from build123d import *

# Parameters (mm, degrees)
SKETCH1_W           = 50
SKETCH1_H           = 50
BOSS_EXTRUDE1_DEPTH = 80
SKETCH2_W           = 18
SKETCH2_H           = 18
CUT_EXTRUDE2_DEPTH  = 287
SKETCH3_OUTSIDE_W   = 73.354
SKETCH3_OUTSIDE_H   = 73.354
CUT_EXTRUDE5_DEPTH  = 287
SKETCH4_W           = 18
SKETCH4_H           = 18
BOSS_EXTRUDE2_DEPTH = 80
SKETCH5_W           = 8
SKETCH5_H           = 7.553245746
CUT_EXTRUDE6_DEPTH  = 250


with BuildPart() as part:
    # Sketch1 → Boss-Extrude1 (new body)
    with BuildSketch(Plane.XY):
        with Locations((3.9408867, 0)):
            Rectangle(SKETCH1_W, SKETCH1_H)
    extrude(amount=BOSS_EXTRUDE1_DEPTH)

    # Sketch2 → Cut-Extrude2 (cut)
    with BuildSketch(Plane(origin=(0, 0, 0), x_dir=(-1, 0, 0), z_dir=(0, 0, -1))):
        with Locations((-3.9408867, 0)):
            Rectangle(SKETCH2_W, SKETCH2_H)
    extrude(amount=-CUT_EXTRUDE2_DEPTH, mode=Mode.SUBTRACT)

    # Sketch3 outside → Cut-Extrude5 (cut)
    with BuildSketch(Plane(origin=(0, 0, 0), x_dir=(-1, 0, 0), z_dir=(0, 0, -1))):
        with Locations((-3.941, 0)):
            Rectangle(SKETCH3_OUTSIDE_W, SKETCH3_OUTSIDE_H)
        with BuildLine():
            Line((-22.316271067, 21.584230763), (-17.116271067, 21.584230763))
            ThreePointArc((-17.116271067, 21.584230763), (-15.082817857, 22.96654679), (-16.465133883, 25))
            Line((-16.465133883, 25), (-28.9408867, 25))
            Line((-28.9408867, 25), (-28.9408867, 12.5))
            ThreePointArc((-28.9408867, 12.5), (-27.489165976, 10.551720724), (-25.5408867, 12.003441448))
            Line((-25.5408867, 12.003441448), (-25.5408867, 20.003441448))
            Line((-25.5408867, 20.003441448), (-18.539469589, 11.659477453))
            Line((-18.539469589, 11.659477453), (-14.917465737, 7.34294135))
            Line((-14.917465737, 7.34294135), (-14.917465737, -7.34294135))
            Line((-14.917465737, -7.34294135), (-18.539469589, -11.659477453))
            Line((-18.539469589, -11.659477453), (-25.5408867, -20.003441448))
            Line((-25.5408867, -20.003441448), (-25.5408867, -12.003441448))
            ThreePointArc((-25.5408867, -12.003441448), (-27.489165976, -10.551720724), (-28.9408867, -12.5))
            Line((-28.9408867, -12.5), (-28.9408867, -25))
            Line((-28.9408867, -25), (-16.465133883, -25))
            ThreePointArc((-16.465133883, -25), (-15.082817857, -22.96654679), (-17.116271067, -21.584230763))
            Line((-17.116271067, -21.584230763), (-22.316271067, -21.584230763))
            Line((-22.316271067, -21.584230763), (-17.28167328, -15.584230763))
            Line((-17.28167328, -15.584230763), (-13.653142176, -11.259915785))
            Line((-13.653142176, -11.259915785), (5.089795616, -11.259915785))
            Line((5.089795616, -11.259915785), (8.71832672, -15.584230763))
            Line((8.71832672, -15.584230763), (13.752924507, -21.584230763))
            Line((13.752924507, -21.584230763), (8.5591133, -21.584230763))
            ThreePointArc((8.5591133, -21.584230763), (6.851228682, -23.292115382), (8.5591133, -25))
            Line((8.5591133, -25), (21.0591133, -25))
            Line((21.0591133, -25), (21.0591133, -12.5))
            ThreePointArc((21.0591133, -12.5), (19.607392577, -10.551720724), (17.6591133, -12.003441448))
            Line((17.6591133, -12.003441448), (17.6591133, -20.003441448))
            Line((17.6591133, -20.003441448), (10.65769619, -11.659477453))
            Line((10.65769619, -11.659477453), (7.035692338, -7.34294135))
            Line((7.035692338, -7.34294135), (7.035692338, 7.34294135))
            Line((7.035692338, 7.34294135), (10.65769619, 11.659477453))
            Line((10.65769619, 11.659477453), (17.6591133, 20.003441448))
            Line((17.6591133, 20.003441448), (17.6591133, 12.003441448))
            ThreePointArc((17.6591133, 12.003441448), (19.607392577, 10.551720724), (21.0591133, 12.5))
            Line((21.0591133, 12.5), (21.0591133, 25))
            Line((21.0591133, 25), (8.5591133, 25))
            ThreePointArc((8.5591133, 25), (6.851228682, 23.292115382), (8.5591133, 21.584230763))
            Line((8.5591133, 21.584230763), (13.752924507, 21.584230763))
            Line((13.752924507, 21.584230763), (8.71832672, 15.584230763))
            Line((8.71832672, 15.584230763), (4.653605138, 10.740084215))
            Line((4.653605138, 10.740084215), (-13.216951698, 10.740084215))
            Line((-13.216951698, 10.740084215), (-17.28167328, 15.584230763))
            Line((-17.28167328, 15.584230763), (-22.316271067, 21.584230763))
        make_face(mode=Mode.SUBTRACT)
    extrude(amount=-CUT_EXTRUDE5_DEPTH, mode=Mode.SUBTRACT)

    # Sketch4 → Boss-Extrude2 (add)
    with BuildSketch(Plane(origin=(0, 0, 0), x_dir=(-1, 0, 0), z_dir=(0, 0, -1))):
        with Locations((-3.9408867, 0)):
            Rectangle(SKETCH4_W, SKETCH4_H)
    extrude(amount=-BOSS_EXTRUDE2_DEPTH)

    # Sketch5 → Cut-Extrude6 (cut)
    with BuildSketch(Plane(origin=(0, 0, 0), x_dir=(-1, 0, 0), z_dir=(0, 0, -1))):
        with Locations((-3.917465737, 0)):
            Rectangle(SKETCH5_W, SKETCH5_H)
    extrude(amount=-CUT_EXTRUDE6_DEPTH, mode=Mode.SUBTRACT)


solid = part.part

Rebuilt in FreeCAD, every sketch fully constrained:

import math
import FreeCAD as App
import Part
import Sketcher
Q = App.Units.Quantity

doc = App.newDocument("Part")
body = doc.addObject("PartDesign::Body", "Body")

sketch1 = body.newObject("Sketcher::SketchObject", "Sketch")
sketch1.AttachmentSupport = (doc.getObject("XY_Plane"), [""])
sketch1.MapMode = "FlatFace"
sketch1.addGeometry(Part.LineSegment(App.Vector(-21, 25, 0), App.Vector(-21, -25, 0)), False)
sketch1.addGeometry(Part.LineSegment(App.Vector(-21, -25, 0), App.Vector(29, -25, 0)), False)
sketch1.addGeometry(Part.LineSegment(App.Vector(29, -25, 0), App.Vector(29, 25, 0)), False)
sketch1.addGeometry(Part.LineSegment(App.Vector(29, 25, 0), App.Vector(-21, 25, 0)), False)
sketch1.addConstraint(Sketcher.Constraint("Coincident", 0, 2, 1, 1))
sketch1.addConstraint(Sketcher.Constraint("Coincident", 1, 2, 2, 1))
sketch1.addConstraint(Sketcher.Constraint("Coincident", 2, 2, 3, 1))
sketch1.addConstraint(Sketcher.Constraint("Coincident", 3, 2, 0, 1))
sketch1.addConstraint(Sketcher.Constraint("Vertical", 0))
sketch1.addConstraint(Sketcher.Constraint("Horizontal", 1))
sketch1.addConstraint(Sketcher.Constraint("Vertical", 2))
sketch1.addConstraint(Sketcher.Constraint("Horizontal", 3))
sketch1.addConstraint(Sketcher.Constraint("Equal", 3, 0))
sketch1.addConstraint(Sketcher.Constraint("DistanceX", 1, 1, 1, 2, Q("50 mm")))
sketch1.addConstraint(Sketcher.Constraint("DistanceY", 0, 2, -1, 1, Q("25 mm")))
sketch1.addConstraint(Sketcher.Constraint("DistanceX", 0, 2, -1, 1, Q("21.059113 mm")))
pad1 = body.newObject("PartDesign::Pad", "Pad")
pad1.Profile = sketch1
pad1.Length = 80

sketch2 = body.newObject("Sketcher::SketchObject", "Sketch001")
sketch2.AttachmentSupport = (doc.getObject("XY_Plane"), [""])
sketch2.MapMode = "FlatFace"
sketch2.addGeometry(Part.LineSegment(App.Vector(13, 9, 0), App.Vector(13, -9, 0)), False)
sketch2.addGeometry(Part.LineSegment(App.Vector(13, -9, 0), App.Vector(-5, -9, 0)), False)
sketch2.addGeometry(Part.LineSegment(App.Vector(-5, -9, 0), App.Vector(-5, 9, 0)), False)
sketch2.addGeometry(Part.LineSegment(App.Vector(-5, 9, 0), App.Vector(13, 9, 0)), False)
sketch2.addConstraint(Sketcher.Constraint("Coincident", 0, 2, 1, 1))
sketch2.addConstraint(Sketcher.Constraint("Coincident", 1, 2, 2, 1))
sketch2.addConstraint(Sketcher.Constraint("Coincident", 2, 2, 3, 1))
sketch2.addConstraint(Sketcher.Constraint("Coincident", 3, 2, 0, 1))
sketch2.addConstraint(Sketcher.Constraint("Vertical", 0))
sketch2.addConstraint(Sketcher.Constraint("Horizontal", 1))
sketch2.addConstraint(Sketcher.Constraint("Vertical", 2))
sketch2.addConstraint(Sketcher.Constraint("Horizontal", 3))
sketch2.addConstraint(Sketcher.Constraint("Equal", 3, 0))
sketch2.addConstraint(Sketcher.Constraint("DistanceX", 1, 2, 1, 1, Q("18 mm")))
sketch2.addConstraint(Sketcher.Constraint("DistanceY", 0, 2, -1, 1, Q("9 mm")))
sketch2.addConstraint(Sketcher.Constraint("DistanceX", -1, 1, 0, 2, Q("12.940887 mm")))
pocket1 = body.newObject("PartDesign::Pocket", "Pocket")
pocket1.Profile = sketch2
pocket1.Length = 287
pocket1.Reversed = True

sketch3 = body.newObject("Sketcher::SketchObject", "Sketch002")
sketch3.AttachmentSupport = (doc.getObject("XY_Plane"), [""])
sketch3.MapMode = "FlatFace"
sketch3.addGeometry(Part.LineSegment(App.Vector(40.6, 36.7, 0), App.Vector(40.6, -36.7, 0)), False)
sketch3.addGeometry(Part.LineSegment(App.Vector(40.6, -36.7, 0), App.Vector(-32.7, -36.7, 0)), False)
sketch3.addGeometry(Part.LineSegment(App.Vector(-32.7, -36.7, 0), App.Vector(-32.7, 36.7, 0)), False)
sketch3.addGeometry(Part.LineSegment(App.Vector(-32.7, 36.7, 0), App.Vector(40.6, 36.7, 0)), False)
sketch3.addGeometry(Part.LineSegment(App.Vector(17.1, 21.6, 0), App.Vector(22.3, 21.6, 0)), False)
sketch3.addGeometry(Part.LineSegment(App.Vector(22.3, 21.6, 0), App.Vector(17.3, 15.6, 0)), False)
sketch3.addGeometry(Part.LineSegment(App.Vector(17.3, 15.6, 0), App.Vector(13.2, 10.7, 0)), False)
sketch3.addGeometry(Part.LineSegment(App.Vector(13.2, 10.7, 0), App.Vector(-4.7, 10.7, 0)), False)
sketch3.addGeometry(Part.LineSegment(App.Vector(-4.7, 10.7, 0), App.Vector(-8.7, 15.6, 0)), False)
sketch3.addGeometry(Part.LineSegment(App.Vector(-8.7, 15.6, 0), App.Vector(-13.8, 21.6, 0)), False)
sketch3.addGeometry(Part.LineSegment(App.Vector(-13.8, 21.6, 0), App.Vector(-8.6, 21.6, 0)), False)
sketch3.addGeometry(Part.ArcOfCircle(Part.Circle(App.Vector(-8.6, 23.3, 0), App.Vector(0, 0, 1), 1.7), math.radians(-90), math.radians(90)), False)
sketch3.addGeometry(Part.LineSegment(App.Vector(-8.6, 25, 0), App.Vector(-21.1, 25, 0)), False)
sketch3.addGeometry(Part.LineSegment(App.Vector(-21.1, 25, 0), App.Vector(-21.1, 12.5, 0)), False)
sketch3.addGeometry(Part.ArcOfCircle(Part.Circle(App.Vector(-19.4, 12.3, 0), App.Vector(0, 0, 1), 1.7), math.radians(172), math.radians(352)), False)
sketch3.addGeometry(Part.LineSegment(App.Vector(-17.7, 12, 0), App.Vector(-17.7, 20, 0)), False)
sketch3.addGeometry(Part.LineSegment(App.Vector(-17.7, 20, 0), App.Vector(-10.7, 11.7, 0)), False)
sketch3.addGeometry(Part.LineSegment(App.Vector(-10.7, 11.7, 0), App.Vector(-7, 7.3, 0)), False)
sketch3.addGeometry(Part.LineSegment(App.Vector(-7, 7.3, 0), App.Vector(-7, -7.3, 0)), False)
sketch3.addGeometry(Part.LineSegment(App.Vector(-7, -7.3, 0), App.Vector(-10.7, -11.7, 0)), False)
sketch3.addGeometry(Part.LineSegment(App.Vector(-10.7, -11.7, 0), App.Vector(-17.7, -20, 0)), False)
sketch3.addGeometry(Part.LineSegment(App.Vector(-17.7, -20, 0), App.Vector(-17.7, -12, 0)), False)
sketch3.addGeometry(Part.ArcOfCircle(Part.Circle(App.Vector(-19.4, -12.3, 0), App.Vector(0, 0, 1), 1.7), math.radians(8), math.radians(188)), False)
sketch3.addGeometry(Part.LineSegment(App.Vector(-21.1, -12.5, 0), App.Vector(-21.1, -25, 0)), False)
sketch3.addGeometry(Part.LineSegment(App.Vector(-21.1, -25, 0), App.Vector(-8.6, -25, 0)), False)
sketch3.addGeometry(Part.ArcOfCircle(Part.Circle(App.Vector(-8.6, -23.3, 0), App.Vector(0, 0, 1), 1.7), math.radians(-90), math.radians(90)), False)
sketch3.addGeometry(Part.LineSegment(App.Vector(-8.6, -21.6, 0), App.Vector(-13.8, -21.6, 0)), False)
sketch3.addGeometry(Part.LineSegment(App.Vector(-13.8, -21.6, 0), App.Vector(-8.7, -15.6, 0)), False)
sketch3.addGeometry(Part.LineSegment(App.Vector(-8.7, -15.6, 0), App.Vector(-5.1, -11.3, 0)), False)
sketch3.addGeometry(Part.LineSegment(App.Vector(-5.1, -11.3, 0), App.Vector(13.7, -11.3, 0)), False)
sketch3.addGeometry(Part.LineSegment(App.Vector(13.7, -11.3, 0), App.Vector(17.3, -15.6, 0)), False)
sketch3.addGeometry(Part.LineSegment(App.Vector(17.3, -15.6, 0), App.Vector(22.3, -21.6, 0)), False)
sketch3.addGeometry(Part.LineSegment(App.Vector(22.3, -21.6, 0), App.Vector(17.1, -21.6, 0)), False)
sketch3.addGeometry(Part.ArcOfCircle(Part.Circle(App.Vector(16.8, -23.3, 0), App.Vector(0, 0, 1), 1.7), math.radians(79), math.radians(259)), False)
sketch3.addGeometry(Part.LineSegment(App.Vector(16.5, -25, 0), App.Vector(28.9, -25, 0)), False)
sketch3.addGeometry(Part.LineSegment(App.Vector(28.9, -25, 0), App.Vector(28.9, -12.5, 0)), False)
sketch3.addGeometry(Part.ArcOfCircle(Part.Circle(App.Vector(27.2, -12.3, 0), App.Vector(0, 0, 1), 1.7), math.radians(-8), math.radians(172)), False)
sketch3.addGeometry(Part.LineSegment(App.Vector(25.5, -12, 0), App.Vector(25.5, -20, 0)), False)
sketch3.addGeometry(Part.LineSegment(App.Vector(25.5, -20, 0), App.Vector(18.5, -11.7, 0)), False)
sketch3.addGeometry(Part.LineSegment(App.Vector(18.5, -11.7, 0), App.Vector(14.9, -7.3, 0)), False)
sketch3.addGeometry(Part.LineSegment(App.Vector(14.9, -7.3, 0), App.Vector(14.9, 7.3, 0)), False)
sketch3.addGeometry(Part.LineSegment(App.Vector(14.9, 7.3, 0), App.Vector(18.5, 11.7, 0)), False)
sketch3.addGeometry(Part.LineSegment(App.Vector(18.5, 11.7, 0), App.Vector(25.5, 20, 0)), False)
sketch3.addGeometry(Part.LineSegment(App.Vector(25.5, 20, 0), App.Vector(25.5, 12, 0)), False)
sketch3.addGeometry(Part.ArcOfCircle(Part.Circle(App.Vector(27.2, 12.3, 0), App.Vector(0, 0, 1), 1.7), math.radians(-172), math.radians(8)), False)
sketch3.addGeometry(Part.LineSegment(App.Vector(28.9, 12.5, 0), App.Vector(28.9, 25, 0)), False)
sketch3.addGeometry(Part.LineSegment(App.Vector(28.9, 25, 0), App.Vector(16.5, 25, 0)), False)
sketch3.addGeometry(Part.ArcOfCircle(Part.Circle(App.Vector(16.8, 23.3, 0), App.Vector(0, 0, 1), 1.7), math.radians(101), math.radians(281)), False)
sketch3.addConstraint(Sketcher.Constraint("Coincident", 0, 2, 1, 1))
sketch3.addConstraint(Sketcher.Constraint("Coincident", 1, 2, 2, 1))
sketch3.addConstraint(Sketcher.Constraint("Coincident", 2, 2, 3, 1))
sketch3.addConstraint(Sketcher.Constraint("Coincident", 3, 2, 0, 1))
sketch3.addConstraint(Sketcher.Constraint("Coincident", 4, 2, 5, 1))
sketch3.addConstraint(Sketcher.Constraint("Coincident", 5, 2, 6, 1))
sketch3.addConstraint(Sketcher.Constraint("Coincident", 6, 2, 7, 1))
sketch3.addConstraint(Sketcher.Constraint("Coincident", 7, 2, 8, 1))
sketch3.addConstraint(Sketcher.Constraint("Coincident", 8, 2, 9, 1))
sketch3.addConstraint(Sketcher.Constraint("Coincident", 9, 2, 10, 1))
sketch3.addConstraint(Sketcher.Constraint("Tangent", 10, 2, 11, 1))
sketch3.addConstraint(Sketcher.Constraint("Tangent", 11, 2, 12, 1))
sketch3.addConstraint(Sketcher.Constraint("Coincident", 12, 2, 13, 1))
sketch3.addConstraint(Sketcher.Constraint("Coincident", 13, 2, 14, 1))
sketch3.addConstraint(Sketcher.Constraint("Coincident", 14, 2, 15, 1))
sketch3.addConstraint(Sketcher.Constraint("Coincident", 15, 2, 16, 1))
sketch3.addConstraint(Sketcher.Constraint("Coincident", 16, 2, 17, 1))
sketch3.addConstraint(Sketcher.Constraint("Coincident", 17, 2, 18, 1))
sketch3.addConstraint(Sketcher.Constraint("Coincident", 18, 2, 19, 1))
sketch3.addConstraint(Sketcher.Constraint("Coincident", 19, 2, 20, 1))
sketch3.addConstraint(Sketcher.Constraint("Coincident", 20, 2, 21, 1))
sketch3.addConstraint(Sketcher.Constraint("Coincident", 21, 2, 22, 1))
sketch3.addConstraint(Sketcher.Constraint("Coincident", 22, 2, 23, 1))
sketch3.addConstraint(Sketcher.Constraint("Coincident", 23, 2, 24, 1))
sketch3.addConstraint(Sketcher.Constraint("Tangent", 24, 2, 25, 1))
sketch3.addConstraint(Sketcher.Constraint("Tangent", 25, 2, 26, 1))
sketch3.addConstraint(Sketcher.Constraint("Coincident", 26, 2, 27, 1))
sketch3.addConstraint(Sketcher.Constraint("Coincident", 27, 2, 28, 1))
sketch3.addConstraint(Sketcher.Constraint("Coincident", 28, 2, 29, 1))
sketch3.addConstraint(Sketcher.Constraint("Coincident", 29, 2, 30, 1))
sketch3.addConstraint(Sketcher.Constraint("Coincident", 30, 2, 31, 1))
sketch3.addConstraint(Sketcher.Constraint("Coincident", 31, 2, 32, 1))
sketch3.addConstraint(Sketcher.Constraint("Coincident", 32, 2, 33, 1))
sketch3.addConstraint(Sketcher.Constraint("Coincident", 33, 2, 34, 1))
sketch3.addConstraint(Sketcher.Constraint("Coincident", 34, 2, 35, 1))
sketch3.addConstraint(Sketcher.Constraint("Coincident", 35, 2, 36, 1))
sketch3.addConstraint(Sketcher.Constraint("Coincident", 36, 2, 37, 1))
sketch3.addConstraint(Sketcher.Constraint("Coincident", 37, 2, 38, 1))
sketch3.addConstraint(Sketcher.Constraint("Coincident", 38, 2, 39, 1))
sketch3.addConstraint(Sketcher.Constraint("Coincident", 39, 2, 40, 1))
sketch3.addConstraint(Sketcher.Constraint("Coincident", 40, 2, 41, 1))
sketch3.addConstraint(Sketcher.Constraint("Coincident", 41, 2, 42, 1))
sketch3.addConstraint(Sketcher.Constraint("Coincident", 42, 2, 43, 1))
sketch3.addConstraint(Sketcher.Constraint("Coincident", 43, 2, 44, 1))
sketch3.addConstraint(Sketcher.Constraint("Coincident", 44, 2, 45, 1))
sketch3.addConstraint(Sketcher.Constraint("Coincident", 45, 2, 46, 1))
sketch3.addConstraint(Sketcher.Constraint("Coincident", 46, 2, 47, 1))
sketch3.addConstraint(Sketcher.Constraint("Coincident", 47, 2, 4, 1))
sketch3.addConstraint(Sketcher.Constraint("Vertical", 0))
sketch3.addConstraint(Sketcher.Constraint("Horizontal", 1))
sketch3.addConstraint(Sketcher.Constraint("Vertical", 2))
sketch3.addConstraint(Sketcher.Constraint("Horizontal", 3))
sketch3.addConstraint(Sketcher.Constraint("Horizontal", 4))
sketch3.addConstraint(Sketcher.Constraint("Horizontal", 7))
sketch3.addConstraint(Sketcher.Constraint("Horizontal", 10))
sketch3.addConstraint(Sketcher.Constraint("Horizontal", 12))
sketch3.addConstraint(Sketcher.Constraint("Vertical", 13))
sketch3.addConstraint(Sketcher.Constraint("Vertical", 15))
sketch3.addConstraint(Sketcher.Constraint("Vertical", 18))
sketch3.addConstraint(Sketcher.Constraint("Vertical", 21))
sketch3.addConstraint(Sketcher.Constraint("Vertical", 23))
sketch3.addConstraint(Sketcher.Constraint("Horizontal", 24))
sketch3.addConstraint(Sketcher.Constraint("Horizontal", 26))
sketch3.addConstraint(Sketcher.Constraint("Horizontal", 29))
sketch3.addConstraint(Sketcher.Constraint("Horizontal", 32))
sketch3.addConstraint(Sketcher.Constraint("Horizontal", 34))
sketch3.addConstraint(Sketcher.Constraint("Vertical", 35))
sketch3.addConstraint(Sketcher.Constraint("Vertical", 37))
sketch3.addConstraint(Sketcher.Constraint("Vertical", 40))
sketch3.addConstraint(Sketcher.Constraint("Vertical", 43))
sketch3.addConstraint(Sketcher.Constraint("Vertical", 45))
sketch3.addConstraint(Sketcher.Constraint("Horizontal", 46))
sketch3.addConstraint(Sketcher.Constraint("Equal", 14, 22))
sketch3.addConstraint(Sketcher.Constraint("Equal", 11, 25))
sketch3.addConstraint(Sketcher.Constraint("Equal", 22, 36))
sketch3.addConstraint(Sketcher.Constraint("Equal", 36, 44))
sketch3.addConstraint(Sketcher.Constraint("Equal", 33, 47))
sketch3.addConstraint(Sketcher.Constraint("Symmetric", 14, 3, 22, 3, -1))
sketch3.addConstraint(Sketcher.Constraint("Symmetric", 11, 3, 25, 3, -1))
sketch3.addConstraint(Sketcher.Constraint("Symmetric", 36, 3, 44, 3, -1))
sketch3.addConstraint(Sketcher.Constraint("Symmetric", 33, 3, 47, 3, -1))
sketch3.addConstraint(Sketcher.Constraint("Symmetric", 16, 2, 19, 2, -1))
sketch3.addConstraint(Sketcher.Constraint("Symmetric", 15, 2, 20, 2, -1))
sketch3.addConstraint(Sketcher.Constraint("Symmetric", 8, 2, 27, 2, -1))
sketch3.addConstraint(Sketcher.Constraint("Symmetric", 5, 2, 30, 2, -1))
sketch3.addConstraint(Sketcher.Constraint("Symmetric", 4, 2, 31, 2, -1))
sketch3.addConstraint(Sketcher.Constraint("Symmetric", 38, 2, 41, 2, -1))
sketch3.addConstraint(Sketcher.Constraint("Symmetric", 37, 2, 42, 2, -1))
sketch3.addConstraint(Sketcher.Constraint("Symmetric", 34, 2, 45, 2, -1))
sketch3.addConstraint(Sketcher.Constraint("Parallel", 5, 6))
sketch3.addConstraint(Sketcher.Constraint("Parallel", 8, 9))
sketch3.addConstraint(Sketcher.Constraint("Parallel", 9, 16))
sketch3.addConstraint(Sketcher.Constraint("Parallel", 16, 17))
sketch3.addConstraint(Sketcher.Constraint("Parallel", 6, 19))
sketch3.addConstraint(Sketcher.Constraint("Parallel", 19, 20))
sketch3.addConstraint(Sketcher.Constraint("Parallel", 20, 27))
sketch3.addConstraint(Sketcher.Constraint("Parallel", 27, 28))
sketch3.addConstraint(Sketcher.Constraint("Parallel", 17, 30))
sketch3.addConstraint(Sketcher.Constraint("Parallel", 31, 38))
sketch3.addConstraint(Sketcher.Constraint("Parallel", 38, 39))
sketch3.addConstraint(Sketcher.Constraint("Parallel", 28, 41))
sketch3.addConstraint(Sketcher.Constraint("Horizontal", 25, 3, 33, 3))
sketch3.addConstraint(Sketcher.Constraint("Horizontal", 22, 3, 36, 3))
sketch3.addConstraint(Sketcher.Constraint("Horizontal", 5, 2, 8, 2))
sketch3.addConstraint(Sketcher.Constraint("Horizontal", 4, 2, 9, 2))
sketch3.addConstraint(Sketcher.Constraint("Horizontal", 24, 2, 33, 2))
sketch3.addConstraint(Sketcher.Constraint("Horizontal", 22, 2, 35, 2))
sketch3.addConstraint(Sketcher.Constraint("Horizontal", 21, 2, 36, 2))
sketch3.addConstraint(Sketcher.Constraint("Horizontal", 20, 2, 37, 2))
sketch3.addConstraint(Sketcher.Constraint("Horizontal", 19, 2, 38, 2))
sketch3.addConstraint(Sketcher.Constraint("Horizontal", 18, 2, 39, 2))
sketch3.addConstraint(Sketcher.Constraint("Horizontal", 13, 2, 44, 2))
sketch3.addConstraint(Sketcher.Constraint("Equal", 3, 0))
sketch3.addConstraint(Sketcher.Constraint("Equal", 24, 13))
sketch3.addConstraint(Sketcher.Constraint("DistanceY", 15, 1, 15, 2, Q("8 mm")))
sketch3.addConstraint(Sketcher.Constraint("Angle", 5, Q("-130 deg")))
sketch3.addConstraint(Sketcher.Constraint("DistanceX", 4, 1, 4, 2, Q("5.2 mm")))
sketch3.addConstraint(Sketcher.Constraint("DistanceX", 12, 2, 12, 1, Q("12.5 mm")))
sketch3.addConstraint(Sketcher.Constraint("DistanceY", -1, 1, 11, 2, Q("25 mm")))
sketch3.addConstraint(Sketcher.Constraint("DistanceY", 5, 2, 4, 2, Q("6 mm")))
sketch3.addConstraint(Sketcher.Constraint("DistanceX", 8, 2, 5, 2, Q("26 mm")))
sketch3.addConstraint(Sketcher.Constraint("DistanceY", 29, 2, 6, 2, Q("22 mm")))
sketch3.addConstraint(Sketcher.Constraint("DistanceX", 14, 3, 11, 3, Q("10.8 mm")))
sketch3.addConstraint(Sketcher.Constraint("DistanceX", 25, 3, 36, 3, Q("35.8 mm")))
sketch3.addConstraint(Sketcher.Constraint("DistanceX", 14, 3, 14, 2, Q("1.7 mm")))
sketch3.addConstraint(Sketcher.Constraint("DistanceX", 1, 2, 1, 1, Q("73.354 mm")))
sketch3.addConstraint(Sketcher.Constraint("Radius", 33, Q("1.738639 mm")))
sketch3.addConstraint(Sketcher.Constraint("DistanceX", -1, 1, 0, 2, Q("40.618 mm")))
sketch3.addConstraint(Sketcher.Constraint("DistanceY", 0, 2, -1, 1, Q("36.677 mm")))
sketch3.addConstraint(Sketcher.Constraint("Radius", 11, Q("1.707885 mm")))
sketch3.addConstraint(Sketcher.Constraint("Radius", 14, Q("1.718035 mm")))
sketch3.addConstraint(Sketcher.Constraint("DistanceX", 10, 1, 10, 2, Q("5.193811 mm")))
sketch3.addConstraint(Sketcher.Constraint("DistanceY", 17, 2, 14, 2, Q("4.6605 mm")))
sketch3.addConstraint(Sketcher.Constraint("DistanceX", 19, 2, 28, 2, Q("5.567901 mm")))
sketch3.addConstraint(Sketcher.Constraint("DistanceY", 25, 3, 28, 2, Q("12.0322 mm")))
sketch3.addConstraint(Sketcher.Constraint("DistanceX", -1, 1, 4, 2, Q("22.316271 mm")))
pocket2 = body.newObject("PartDesign::Pocket", "Pocket001")
pocket2.Profile = sketch3
pocket2.Length = 287
pocket2.Reversed = True

sketch4 = body.newObject("Sketcher::SketchObject", "Sketch003")
sketch4.AttachmentSupport = (doc.getObject("XY_Plane"), [""])
sketch4.MapMode = "FlatFace"
sketch4.addGeometry(Part.LineSegment(App.Vector(13, 9, 0), App.Vector(13, -9, 0)), False)
sketch4.addGeometry(Part.LineSegment(App.Vector(13, -9, 0), App.Vector(-5, -9, 0)), False)
sketch4.addGeometry(Part.LineSegment(App.Vector(-5, -9, 0), App.Vector(-5, 9, 0)), False)
sketch4.addGeometry(Part.LineSegment(App.Vector(-5, 9, 0), App.Vector(13, 9, 0)), False)
sketch4.addConstraint(Sketcher.Constraint("Coincident", 0, 2, 1, 1))
sketch4.addConstraint(Sketcher.Constraint("Coincident", 1, 2, 2, 1))
sketch4.addConstraint(Sketcher.Constraint("Coincident", 2, 2, 3, 1))
sketch4.addConstraint(Sketcher.Constraint("Coincident", 3, 2, 0, 1))
sketch4.addConstraint(Sketcher.Constraint("Vertical", 0))
sketch4.addConstraint(Sketcher.Constraint("Horizontal", 1))
sketch4.addConstraint(Sketcher.Constraint("Vertical", 2))
sketch4.addConstraint(Sketcher.Constraint("Horizontal", 3))
sketch4.addConstraint(Sketcher.Constraint("Equal", 3, 0))
sketch4.addConstraint(Sketcher.Constraint("DistanceX", 1, 2, 1, 1, Q("18 mm")))
sketch4.addConstraint(Sketcher.Constraint("DistanceY", 0, 2, -1, 1, Q("9 mm")))
sketch4.addConstraint(Sketcher.Constraint("DistanceX", -1, 1, 0, 2, Q("12.940887 mm")))
pad2 = body.newObject("PartDesign::Pad", "Pad001")
pad2.Profile = sketch4
pad2.Length = 80

sketch5 = body.newObject("Sketcher::SketchObject", "Sketch004")
sketch5.AttachmentSupport = (doc.getObject("XY_Plane"), [""])
sketch5.MapMode = "FlatFace"
sketch5.addGeometry(Part.LineSegment(App.Vector(8, 4, 0), App.Vector(8, -4, 0)), False)
sketch5.addGeometry(Part.LineSegment(App.Vector(8, -4, 0), App.Vector(0, -4, 0)), False)
sketch5.addGeometry(Part.LineSegment(App.Vector(0, -4, 0), App.Vector(0, 4, 0)), False)
sketch5.addGeometry(Part.LineSegment(App.Vector(0, 4, 0), App.Vector(8, 4, 0)), False)
sketch5.addConstraint(Sketcher.Constraint("Coincident", 0, 2, 1, 1))
sketch5.addConstraint(Sketcher.Constraint("Coincident", 1, 2, 2, 1))
sketch5.addConstraint(Sketcher.Constraint("Coincident", 2, 2, 3, 1))
sketch5.addConstraint(Sketcher.Constraint("Coincident", 3, 2, 0, 1))
sketch5.addConstraint(Sketcher.Constraint("Vertical", 0))
sketch5.addConstraint(Sketcher.Constraint("Horizontal", 1))
sketch5.addConstraint(Sketcher.Constraint("Vertical", 2))
sketch5.addConstraint(Sketcher.Constraint("Horizontal", 3))
sketch5.addConstraint(Sketcher.Constraint("DistanceX", 1, 2, 1, 1, Q("8 mm")))
sketch5.addConstraint(Sketcher.Constraint("DistanceY", 0, 2, 0, 1, Q("7.553246 mm")))
sketch5.addConstraint(Sketcher.Constraint("DistanceX", -1, 1, 0, 2, Q("7.917466 mm")))
sketch5.addConstraint(Sketcher.Constraint("DistanceY", 0, 2, -1, 1, Q("3.776623 mm")))
pocket3 = body.newObject("PartDesign::Pocket", "Pocket002")
pocket3.Profile = sketch5
pocket3.Length = 250
pocket3.Reversed = True

doc.recompute()
